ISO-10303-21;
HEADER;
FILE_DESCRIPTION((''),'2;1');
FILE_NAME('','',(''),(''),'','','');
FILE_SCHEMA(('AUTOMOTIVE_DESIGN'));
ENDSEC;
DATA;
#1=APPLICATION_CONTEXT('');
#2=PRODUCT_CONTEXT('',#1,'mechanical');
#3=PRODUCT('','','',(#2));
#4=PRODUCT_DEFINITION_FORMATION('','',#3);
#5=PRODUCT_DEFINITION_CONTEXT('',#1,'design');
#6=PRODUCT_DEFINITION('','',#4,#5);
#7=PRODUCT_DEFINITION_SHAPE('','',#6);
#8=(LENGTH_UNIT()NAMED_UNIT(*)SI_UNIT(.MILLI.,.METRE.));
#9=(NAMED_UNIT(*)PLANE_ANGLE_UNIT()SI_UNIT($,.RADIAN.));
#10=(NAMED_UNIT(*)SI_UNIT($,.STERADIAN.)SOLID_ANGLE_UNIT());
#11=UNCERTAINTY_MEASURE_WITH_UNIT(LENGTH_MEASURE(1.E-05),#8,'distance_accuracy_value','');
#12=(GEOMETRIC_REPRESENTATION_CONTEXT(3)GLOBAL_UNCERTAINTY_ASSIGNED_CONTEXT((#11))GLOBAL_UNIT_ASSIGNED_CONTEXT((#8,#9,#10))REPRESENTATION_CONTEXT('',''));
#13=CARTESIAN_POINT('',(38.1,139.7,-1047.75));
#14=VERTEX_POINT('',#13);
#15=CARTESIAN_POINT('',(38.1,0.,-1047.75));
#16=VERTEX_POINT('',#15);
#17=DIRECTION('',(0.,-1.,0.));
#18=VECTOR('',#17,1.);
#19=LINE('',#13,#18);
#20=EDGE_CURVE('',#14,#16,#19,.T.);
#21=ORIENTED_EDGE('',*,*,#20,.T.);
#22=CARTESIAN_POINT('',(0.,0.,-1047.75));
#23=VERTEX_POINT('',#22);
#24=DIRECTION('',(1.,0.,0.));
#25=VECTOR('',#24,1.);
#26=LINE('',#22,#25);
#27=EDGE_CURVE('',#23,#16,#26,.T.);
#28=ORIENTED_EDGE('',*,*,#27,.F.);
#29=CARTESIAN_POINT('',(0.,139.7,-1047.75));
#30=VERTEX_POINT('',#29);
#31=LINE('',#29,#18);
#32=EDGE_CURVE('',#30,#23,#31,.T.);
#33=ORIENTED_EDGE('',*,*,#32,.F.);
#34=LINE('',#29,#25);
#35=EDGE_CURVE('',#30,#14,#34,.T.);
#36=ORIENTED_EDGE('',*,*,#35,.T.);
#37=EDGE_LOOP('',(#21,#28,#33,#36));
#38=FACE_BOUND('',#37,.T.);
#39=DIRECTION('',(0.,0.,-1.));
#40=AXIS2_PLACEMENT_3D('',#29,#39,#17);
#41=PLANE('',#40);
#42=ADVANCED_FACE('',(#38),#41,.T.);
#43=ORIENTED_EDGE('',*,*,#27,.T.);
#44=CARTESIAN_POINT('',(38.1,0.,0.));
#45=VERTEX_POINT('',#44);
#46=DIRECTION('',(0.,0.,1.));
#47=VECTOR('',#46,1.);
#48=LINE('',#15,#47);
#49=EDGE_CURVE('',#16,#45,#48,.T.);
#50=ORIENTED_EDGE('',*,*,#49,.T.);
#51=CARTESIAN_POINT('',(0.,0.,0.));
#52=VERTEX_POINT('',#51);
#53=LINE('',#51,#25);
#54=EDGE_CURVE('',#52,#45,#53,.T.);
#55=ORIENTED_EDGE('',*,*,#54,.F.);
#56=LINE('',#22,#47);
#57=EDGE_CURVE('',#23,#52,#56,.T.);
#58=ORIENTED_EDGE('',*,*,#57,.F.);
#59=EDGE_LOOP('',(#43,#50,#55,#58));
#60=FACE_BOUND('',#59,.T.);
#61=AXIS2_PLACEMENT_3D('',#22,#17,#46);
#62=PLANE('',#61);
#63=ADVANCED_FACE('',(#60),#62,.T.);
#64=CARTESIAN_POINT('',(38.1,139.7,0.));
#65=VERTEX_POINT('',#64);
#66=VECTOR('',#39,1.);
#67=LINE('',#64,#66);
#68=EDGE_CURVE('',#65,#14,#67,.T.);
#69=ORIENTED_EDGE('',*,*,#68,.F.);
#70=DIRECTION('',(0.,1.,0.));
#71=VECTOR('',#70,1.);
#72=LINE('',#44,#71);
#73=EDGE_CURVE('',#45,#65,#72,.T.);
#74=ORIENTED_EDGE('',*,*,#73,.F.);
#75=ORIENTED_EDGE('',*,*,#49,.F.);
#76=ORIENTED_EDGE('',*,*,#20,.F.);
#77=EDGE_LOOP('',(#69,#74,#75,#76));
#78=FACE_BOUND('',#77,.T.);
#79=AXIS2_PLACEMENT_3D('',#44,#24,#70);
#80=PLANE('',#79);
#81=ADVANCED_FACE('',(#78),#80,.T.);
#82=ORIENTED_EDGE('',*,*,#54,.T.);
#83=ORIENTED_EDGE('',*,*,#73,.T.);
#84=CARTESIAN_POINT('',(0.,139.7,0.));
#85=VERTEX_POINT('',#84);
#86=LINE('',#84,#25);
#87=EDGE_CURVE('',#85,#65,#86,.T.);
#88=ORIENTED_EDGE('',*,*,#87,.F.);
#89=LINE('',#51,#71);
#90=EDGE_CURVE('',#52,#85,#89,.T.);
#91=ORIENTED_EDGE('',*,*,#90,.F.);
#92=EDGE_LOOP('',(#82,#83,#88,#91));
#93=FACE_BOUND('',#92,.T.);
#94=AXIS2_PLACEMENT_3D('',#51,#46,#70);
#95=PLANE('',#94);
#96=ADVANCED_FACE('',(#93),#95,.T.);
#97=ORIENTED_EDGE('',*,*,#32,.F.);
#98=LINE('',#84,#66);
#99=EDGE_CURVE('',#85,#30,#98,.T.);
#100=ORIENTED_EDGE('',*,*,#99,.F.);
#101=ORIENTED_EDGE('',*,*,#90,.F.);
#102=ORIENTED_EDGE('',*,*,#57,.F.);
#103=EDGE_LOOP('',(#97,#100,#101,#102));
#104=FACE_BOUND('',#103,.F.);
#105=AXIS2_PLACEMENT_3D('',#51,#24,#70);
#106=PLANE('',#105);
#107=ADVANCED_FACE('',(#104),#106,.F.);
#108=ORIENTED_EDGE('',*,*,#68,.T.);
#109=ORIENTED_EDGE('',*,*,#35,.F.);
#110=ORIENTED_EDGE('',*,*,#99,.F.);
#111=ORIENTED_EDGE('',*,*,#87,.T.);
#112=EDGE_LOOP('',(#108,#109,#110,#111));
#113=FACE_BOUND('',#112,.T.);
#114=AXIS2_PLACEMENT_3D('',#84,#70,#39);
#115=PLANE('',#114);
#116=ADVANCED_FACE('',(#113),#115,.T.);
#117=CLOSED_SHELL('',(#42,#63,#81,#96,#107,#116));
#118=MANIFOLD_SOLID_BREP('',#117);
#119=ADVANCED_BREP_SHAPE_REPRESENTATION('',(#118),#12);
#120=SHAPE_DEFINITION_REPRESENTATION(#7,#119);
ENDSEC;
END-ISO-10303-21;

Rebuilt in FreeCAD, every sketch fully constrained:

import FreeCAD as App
import Part
import Sketcher
Q = App.Units.Quantity


def add_polygon(sketch, points):
    """Adds a closed chain of lines whose ends are joined by coincident constraints."""
    first, n = sketch.GeometryCount, len(points)
    for a, b in zip(points, points[1:] + points[:1]):
        sketch.addGeometry(Part.LineSegment(App.Vector(*a, 0), App.Vector(*b, 0)), False)
    for i in range(n):
        sketch.addConstraint(Sketcher.Constraint("Coincident", first + i, 2, first + (i + 1) % n, 1))

doc = App.newDocument("Part")
params = doc.addObject("Spreadsheet::Sheet", "Params")
for row, (alias, value) in enumerate([
    ("sketch1_width", "5.5 in"),
    ("sketch1_height", "41.25 in"),
    ("pad1_length", "1.5 in"),
], start=1):
    params.set(f"A{row}", alias)
    params.set(f"B{row}", "=" + value)
    params.setAlias(f"B{row}", alias)

body = doc.addObject("PartDesign::Body", "Body")

# Sketch on YZ plane
sketch1 = body.newObject("Sketcher::SketchObject", "Sketch")
sketch1.AttachmentSupport = (doc.getObject("YZ_Plane"), [""])
sketch1.MapMode = "FlatFace"
add_polygon(sketch1, [(140, 0), (0, 0), (0, -1048), (140, -1048)])  # lines 0-3
sketch1.addConstraint(Sketcher.Constraint("Horizontal", 0))
sketch1.addConstraint(Sketcher.Constraint("Vertical", 1))
sketch1.addConstraint(Sketcher.Constraint("Horizontal", 2))
sketch1.addConstraint(Sketcher.Constraint("Vertical", 3))
sketch1.addConstraint(Sketcher.Constraint("Coincident", 0, 2, -1, 1))
sketch1.addConstraint(Sketcher.Constraint("DistanceX", 0, 2, 0, 1, Q("5.5 in")))
sketch1.addConstraint(Sketcher.Constraint("DistanceY", 1, 2, 1, 1, Q("41.25 in")))
sketch1.setExpression("Constraints[9]", "Params.sketch1_width")
sketch1.setExpression("Constraints[10]", "Params.sketch1_height")
pad1 = body.newObject("PartDesign::Pad", "Pad")
pad1.Profile = sketch1
pad1.setExpression("Length", "Params.pad1_length")

doc.recompute()
